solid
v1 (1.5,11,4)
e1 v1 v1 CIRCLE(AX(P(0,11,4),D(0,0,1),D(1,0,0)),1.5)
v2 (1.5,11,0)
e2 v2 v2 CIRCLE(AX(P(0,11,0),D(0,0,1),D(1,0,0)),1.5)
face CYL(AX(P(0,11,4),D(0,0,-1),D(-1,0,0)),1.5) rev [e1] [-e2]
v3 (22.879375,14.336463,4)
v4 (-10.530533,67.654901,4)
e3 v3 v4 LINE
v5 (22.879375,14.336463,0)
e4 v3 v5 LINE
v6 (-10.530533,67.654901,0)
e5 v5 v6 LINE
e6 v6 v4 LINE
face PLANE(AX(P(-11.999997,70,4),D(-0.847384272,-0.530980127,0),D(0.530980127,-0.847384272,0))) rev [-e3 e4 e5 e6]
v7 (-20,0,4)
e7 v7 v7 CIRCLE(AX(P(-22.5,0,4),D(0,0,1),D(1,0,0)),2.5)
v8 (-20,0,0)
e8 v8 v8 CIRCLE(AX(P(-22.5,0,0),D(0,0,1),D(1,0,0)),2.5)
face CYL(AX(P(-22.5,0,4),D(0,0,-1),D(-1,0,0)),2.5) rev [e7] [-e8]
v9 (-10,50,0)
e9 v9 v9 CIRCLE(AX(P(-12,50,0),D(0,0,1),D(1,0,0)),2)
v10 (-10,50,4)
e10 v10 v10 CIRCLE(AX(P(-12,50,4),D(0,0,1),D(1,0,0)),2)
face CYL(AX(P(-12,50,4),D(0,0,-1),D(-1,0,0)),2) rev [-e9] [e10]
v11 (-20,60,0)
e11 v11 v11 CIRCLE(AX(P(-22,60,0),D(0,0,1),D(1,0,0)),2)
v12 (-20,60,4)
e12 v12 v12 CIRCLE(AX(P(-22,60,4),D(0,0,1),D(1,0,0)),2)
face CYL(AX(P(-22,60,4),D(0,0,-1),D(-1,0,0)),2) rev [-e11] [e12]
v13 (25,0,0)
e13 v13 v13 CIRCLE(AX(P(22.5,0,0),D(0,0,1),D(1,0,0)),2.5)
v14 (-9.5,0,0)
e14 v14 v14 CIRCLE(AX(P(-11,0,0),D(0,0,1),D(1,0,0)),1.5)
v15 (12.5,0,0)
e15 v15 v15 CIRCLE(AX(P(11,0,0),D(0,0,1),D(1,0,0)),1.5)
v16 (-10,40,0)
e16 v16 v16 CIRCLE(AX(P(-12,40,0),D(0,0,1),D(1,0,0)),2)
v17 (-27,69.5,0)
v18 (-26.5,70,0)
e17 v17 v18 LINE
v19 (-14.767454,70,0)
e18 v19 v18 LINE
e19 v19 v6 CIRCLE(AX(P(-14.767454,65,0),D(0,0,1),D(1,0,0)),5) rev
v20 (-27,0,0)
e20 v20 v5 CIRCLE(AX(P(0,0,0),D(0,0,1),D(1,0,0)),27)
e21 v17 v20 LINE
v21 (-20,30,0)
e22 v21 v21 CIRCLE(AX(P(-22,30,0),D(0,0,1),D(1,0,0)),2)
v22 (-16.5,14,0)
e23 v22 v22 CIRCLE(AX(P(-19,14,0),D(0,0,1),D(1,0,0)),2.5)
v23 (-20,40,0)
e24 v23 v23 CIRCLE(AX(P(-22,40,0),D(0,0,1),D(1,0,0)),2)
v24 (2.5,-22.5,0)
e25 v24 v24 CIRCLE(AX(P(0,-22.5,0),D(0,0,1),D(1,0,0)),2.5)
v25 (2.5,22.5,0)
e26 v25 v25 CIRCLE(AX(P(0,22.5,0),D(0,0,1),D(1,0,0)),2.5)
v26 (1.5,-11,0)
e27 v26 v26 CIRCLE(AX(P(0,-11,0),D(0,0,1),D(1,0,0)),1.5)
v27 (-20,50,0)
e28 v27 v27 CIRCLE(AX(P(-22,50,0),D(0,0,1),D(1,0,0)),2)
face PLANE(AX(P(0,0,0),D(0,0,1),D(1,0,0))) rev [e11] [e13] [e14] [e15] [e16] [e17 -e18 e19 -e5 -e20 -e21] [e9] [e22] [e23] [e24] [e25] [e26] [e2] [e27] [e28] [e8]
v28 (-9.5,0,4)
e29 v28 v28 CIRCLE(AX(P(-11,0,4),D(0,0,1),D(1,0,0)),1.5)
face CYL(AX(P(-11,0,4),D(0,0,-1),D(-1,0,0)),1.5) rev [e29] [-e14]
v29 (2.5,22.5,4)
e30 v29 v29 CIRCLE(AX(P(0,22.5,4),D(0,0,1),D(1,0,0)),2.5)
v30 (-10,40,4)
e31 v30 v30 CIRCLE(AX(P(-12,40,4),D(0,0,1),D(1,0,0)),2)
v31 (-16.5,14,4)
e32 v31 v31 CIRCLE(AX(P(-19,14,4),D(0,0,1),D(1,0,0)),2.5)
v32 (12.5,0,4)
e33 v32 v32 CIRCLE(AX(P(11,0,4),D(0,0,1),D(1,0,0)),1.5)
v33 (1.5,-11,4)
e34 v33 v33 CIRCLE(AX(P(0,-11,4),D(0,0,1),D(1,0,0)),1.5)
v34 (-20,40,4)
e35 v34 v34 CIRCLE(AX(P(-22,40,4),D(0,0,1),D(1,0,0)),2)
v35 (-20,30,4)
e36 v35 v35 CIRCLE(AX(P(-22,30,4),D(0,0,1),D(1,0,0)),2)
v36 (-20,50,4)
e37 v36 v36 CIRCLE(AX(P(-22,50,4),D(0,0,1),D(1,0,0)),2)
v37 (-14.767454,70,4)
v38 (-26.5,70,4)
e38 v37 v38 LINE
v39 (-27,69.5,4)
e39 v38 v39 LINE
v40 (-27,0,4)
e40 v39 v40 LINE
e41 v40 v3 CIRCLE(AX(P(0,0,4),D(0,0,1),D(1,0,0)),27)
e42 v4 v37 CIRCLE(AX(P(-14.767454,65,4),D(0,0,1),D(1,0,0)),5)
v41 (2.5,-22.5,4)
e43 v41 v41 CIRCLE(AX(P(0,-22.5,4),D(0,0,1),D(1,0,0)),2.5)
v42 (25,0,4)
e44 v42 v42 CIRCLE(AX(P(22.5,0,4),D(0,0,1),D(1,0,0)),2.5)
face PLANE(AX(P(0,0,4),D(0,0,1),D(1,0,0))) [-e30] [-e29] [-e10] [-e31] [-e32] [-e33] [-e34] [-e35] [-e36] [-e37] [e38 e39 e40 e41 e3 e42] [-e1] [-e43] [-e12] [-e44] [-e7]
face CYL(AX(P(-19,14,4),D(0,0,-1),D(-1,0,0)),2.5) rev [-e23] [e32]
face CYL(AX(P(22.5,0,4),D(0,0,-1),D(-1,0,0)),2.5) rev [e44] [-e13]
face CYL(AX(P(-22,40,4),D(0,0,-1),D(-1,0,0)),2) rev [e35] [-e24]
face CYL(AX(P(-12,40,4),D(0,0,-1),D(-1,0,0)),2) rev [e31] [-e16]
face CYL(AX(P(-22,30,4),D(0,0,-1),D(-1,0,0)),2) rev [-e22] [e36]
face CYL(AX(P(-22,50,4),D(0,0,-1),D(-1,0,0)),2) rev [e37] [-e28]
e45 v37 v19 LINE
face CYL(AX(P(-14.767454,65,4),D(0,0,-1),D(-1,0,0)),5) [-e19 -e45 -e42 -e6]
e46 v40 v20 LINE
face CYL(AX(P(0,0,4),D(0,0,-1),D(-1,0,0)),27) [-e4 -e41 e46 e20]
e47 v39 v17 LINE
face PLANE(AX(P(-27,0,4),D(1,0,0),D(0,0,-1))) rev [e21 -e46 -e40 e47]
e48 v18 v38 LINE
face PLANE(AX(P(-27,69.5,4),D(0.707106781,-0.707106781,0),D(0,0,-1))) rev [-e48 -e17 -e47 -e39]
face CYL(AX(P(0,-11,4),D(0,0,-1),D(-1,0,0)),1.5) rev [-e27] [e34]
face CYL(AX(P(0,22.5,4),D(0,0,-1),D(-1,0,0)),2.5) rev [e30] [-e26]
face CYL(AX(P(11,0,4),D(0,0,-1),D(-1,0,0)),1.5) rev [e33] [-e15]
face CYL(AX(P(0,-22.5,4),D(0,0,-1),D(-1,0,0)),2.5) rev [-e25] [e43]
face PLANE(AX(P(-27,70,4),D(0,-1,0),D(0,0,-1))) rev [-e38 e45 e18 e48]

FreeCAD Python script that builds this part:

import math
import FreeCAD as App
import Part
import Sketcher

V = App.Vector
Q = App.Units.Quantity


def edges_at(feature, points):
    """Names of the edges that pass closest to the given points."""
    edges = feature.Shape.Edges
    near = lambda p: min(range(len(edges)), key=lambda i: edges[i].distToShape(Part.Vertex(*p))[0])
    return sorted({f"Edge{near(p) + 1}" for p in points})

doc = App.newDocument("Part")
body = doc.addObject("PartDesign::Body", "Body")

sketch1 = doc.addObject("Sketcher::SketchObject", "Sketch")
body.addObject(sketch1)
sketch1.AttachmentSupport = (doc.XY_Plane, [""])
sketch1.MapMode = "FlatFace"
sketch1.addGeometry(Part.LineSegment(V(-27, 70, 0), V(-27, 0, 0)), False)
sketch1.addGeometry(Part.ArcOfCircle(Part.Circle(V(0, 0, 0), V(0, 0, 1), 27), math.radians(180), math.radians(392.071702)), False)
sketch1.addGeometry(Part.LineSegment(V(22.879375, 14.336463, 0), V(-11.999997, 70, 0)), False)
sketch1.addGeometry(Part.LineSegment(V(-11.999997, 70, 0), V(-27, 70, 0)), False)
sketch1.addGeometry(Part.Circle(V(22.5, 0, 0), V(0, 0, 1), 2.5), False)
sketch1.addGeometry(Part.Circle(V(11, 0, 0), V(0, 0, 1), 1.5), False)
sketch1.addGeometry(Part.Circle(V(0, -22.5, 0), V(0, 0, 1), 2.5), False)
sketch1.addGeometry(Part.Circle(V(0, -11, 0), V(0, 0, 1), 1.5), False)
sketch1.addGeometry(Part.Circle(V(-11, 0, 0), V(0, 0, 1), 1.5), False)
sketch1.addGeometry(Part.Circle(V(0, 11, 0), V(0, 0, 1), 1.5), False)
sketch1.addGeometry(Part.Circle(V(-22.5, 0, 0), V(0, 0, 1), 2.5), False)
sketch1.addGeometry(Part.Circle(V(-19, 14, 0), V(0, 0, 1), 2.5), False)
sketch1.addGeometry(Part.Circle(V(0, 22.5, 0), V(0, 0, 1), 2.5), False)
sketch1.addGeometry(Part.Circle(V(-12, 40, 0), V(0, 0, 1), 2), False)
sketch1.addGeometry(Part.Circle(V(-22, 30, 0), V(0, 0, 1), 2), False)
sketch1.addGeometry(Part.Circle(V(-22, 40, 0), V(0, 0, 1), 2), False)
sketch1.addGeometry(Part.Circle(V(-12, 50, 0), V(0, 0, 1), 2), False)
sketch1.addGeometry(Part.Circle(V(-22, 50, 0), V(0, 0, 1), 2), False)
sketch1.addGeometry(Part.Circle(V(-22, 60, 0), V(0, 0, 1), 2), False)
sketch1.addConstraint(Sketcher.Constraint("Tangent", 0, 2, 1, 1))
sketch1.addConstraint(Sketcher.Constraint("Tangent", 1, 2, 2, 1))
sketch1.addConstraint(Sketcher.Constraint("Coincident", 2, 2, 3, 1))
sketch1.addConstraint(Sketcher.Constraint("Coincident", 3, 2, 0, 1))
sketch1.addConstraint(Sketcher.Constraint("Vertical", 0))
sketch1.addConstraint(Sketcher.Constraint("Horizontal", 3))
sketch1.addConstraint(Sketcher.Constraint("Coincident", 1, 3, -1, 1))
sketch1.addConstraint(Sketcher.Constraint("Equal", 4, 6))
sketch1.addConstraint(Sketcher.Constraint("Equal", 5, 7))
sketch1.addConstraint(Sketcher.Constraint("Equal", 7, 8))
sketch1.addConstraint(Sketcher.Constraint("Equal", 8, 9))
sketch1.addConstraint(Sketcher.Constraint("Equal", 6, 10))
sketch1.addConstraint(Sketcher.Constraint("Equal", 10, 11))
sketch1.addConstraint(Sketcher.Constraint("Equal", 11, 12))
sketch1.addConstraint(Sketcher.Constraint("Equal", 13, 14))
sketch1.addConstraint(Sketcher.Constraint("Equal", 14, 15))
sketch1.addConstraint(Sketcher.Constraint("Equal", 15, 16))
sketch1.addConstraint(Sketcher.Constraint("Equal", 16, 17))
sketch1.addConstraint(Sketcher.Constraint("Equal", 17, 18))
sketch1.addConstraint(Sketcher.Constraint("Symmetric", 5, 3, 8, 3, -1, 1))
sketch1.addConstraint(Sketcher.Constraint("Symmetric", 7, 3, 9, 3, -1, 1))
sketch1.addConstraint(Sketcher.Constraint("Symmetric", 4, 3, 10, 3, -1, 1))
sketch1.addConstraint(Sketcher.Constraint("Symmetric", 6, 3, 12, 3, -1, 1))
sketch1.addConstraint(Sketcher.Constraint("PointOnObject", 4, 3, -1))
sketch1.addConstraint(Sketcher.Constraint("PointOnObject", 5, 3, -1))
sketch1.addConstraint(Sketcher.Constraint("PointOnObject", 6, 3, -2))
sketch1.addConstraint(Sketcher.Constraint("PointOnObject", 7, 3, -2))
sketch1.addConstraint(Sketcher.Constraint("Horizontal", 13, 3, 15, 3))
sketch1.addConstraint(Sketcher.Constraint("Horizontal", 16, 3, 17, 3))
sketch1.addConstraint(Sketcher.Constraint("Vertical", 14, 3, 15, 3))
sketch1.addConstraint(Sketcher.Constraint("Vertical", 13, 3, 16, 3))
sketch1.addConstraint(Sketcher.Constraint("Vertical", 15, 3, 17, 3))
sketch1.addConstraint(Sketcher.Constraint("Vertical", 17, 3, 18, 3))
sketch1.addConstraint(Sketcher.Constraint("Diameter", 4, Q("5 mm")))
sketch1.addConstraint(Sketcher.Constraint("Diameter", 5, Q("3 mm")))
sketch1.addConstraint(Sketcher.Constraint("Diameter", 13, Q("4 mm")))
sketch1.addConstraint(Sketcher.Constraint("Radius", 1, Q("27 mm")))
sketch1.addConstraint(Sketcher.Constraint("DistanceY", 0, 2, 0, 1, Q("70 mm")))
sketch1.addConstraint(Sketcher.Constraint("DistanceX", -1, 1, 5, 3, Q("11 mm")))
sketch1.addConstraint(Sketcher.Constraint("DistanceY", 7, 3, -1, 1, Q("11 mm")))
sketch1.addConstraint(Sketcher.Constraint("DistanceX", 11, 3, -1, 1, Q("19 mm")))
sketch1.addConstraint(Sketcher.Constraint("DistanceY", -1, 1, 11, 3, Q("14 mm")))
sketch1.addConstraint(Sketcher.Constraint("DistanceX", 13, 3, -1, 1, Q("12 mm")))
sketch1.addConstraint(Sketcher.Constraint("DistanceY", -1, 1, 13, 3, Q("40 mm")))
sketch1.addConstraint(Sketcher.Constraint("DistanceX", 14, 3, -1, 1, Q("22 mm")))
sketch1.addConstraint(Sketcher.Constraint("DistanceY", -1, 1, 14, 3, Q("30 mm")))
sketch1.addConstraint(Sketcher.Constraint("DistanceY", -1, 1, 16, 3, Q("50 mm")))
sketch1.addConstraint(Sketcher.Constraint("DistanceY", -1, 1, 18, 3, Q("60 mm")))
sketch1.addConstraint(Sketcher.Constraint("DistanceX", -1, 1, 4, 3, Q("22.5 mm")))
sketch1.addConstraint(Sketcher.Constraint("DistanceY", 6, 3, -1, 1, Q("22.5 mm")))
sketch1.addConstraint(Sketcher.Constraint("Distance", 2, Q("65.688659 mm")))
pad1 = doc.addObject("PartDesign::Pad", "Pad")
body.addObject(pad1)
pad1.Profile = sketch1
pad1.Length = 4
doc.recompute()

fillet = doc.addObject("PartDesign::Fillet", "Fillet")
body.addObject(fillet)
fillet.Base = (pad1, edges_at(pad1, [(-12, 70, 2)]))
fillet.Radius = 5
doc.recompute()

chamfer = doc.addObject("PartDesign::Chamfer", "Chamfer")
body.addObject(chamfer)
chamfer.Base = (fillet, edges_at(fillet, [(-27, 70, 2)]))
chamfer.Size = 0.5

doc.recompute()
